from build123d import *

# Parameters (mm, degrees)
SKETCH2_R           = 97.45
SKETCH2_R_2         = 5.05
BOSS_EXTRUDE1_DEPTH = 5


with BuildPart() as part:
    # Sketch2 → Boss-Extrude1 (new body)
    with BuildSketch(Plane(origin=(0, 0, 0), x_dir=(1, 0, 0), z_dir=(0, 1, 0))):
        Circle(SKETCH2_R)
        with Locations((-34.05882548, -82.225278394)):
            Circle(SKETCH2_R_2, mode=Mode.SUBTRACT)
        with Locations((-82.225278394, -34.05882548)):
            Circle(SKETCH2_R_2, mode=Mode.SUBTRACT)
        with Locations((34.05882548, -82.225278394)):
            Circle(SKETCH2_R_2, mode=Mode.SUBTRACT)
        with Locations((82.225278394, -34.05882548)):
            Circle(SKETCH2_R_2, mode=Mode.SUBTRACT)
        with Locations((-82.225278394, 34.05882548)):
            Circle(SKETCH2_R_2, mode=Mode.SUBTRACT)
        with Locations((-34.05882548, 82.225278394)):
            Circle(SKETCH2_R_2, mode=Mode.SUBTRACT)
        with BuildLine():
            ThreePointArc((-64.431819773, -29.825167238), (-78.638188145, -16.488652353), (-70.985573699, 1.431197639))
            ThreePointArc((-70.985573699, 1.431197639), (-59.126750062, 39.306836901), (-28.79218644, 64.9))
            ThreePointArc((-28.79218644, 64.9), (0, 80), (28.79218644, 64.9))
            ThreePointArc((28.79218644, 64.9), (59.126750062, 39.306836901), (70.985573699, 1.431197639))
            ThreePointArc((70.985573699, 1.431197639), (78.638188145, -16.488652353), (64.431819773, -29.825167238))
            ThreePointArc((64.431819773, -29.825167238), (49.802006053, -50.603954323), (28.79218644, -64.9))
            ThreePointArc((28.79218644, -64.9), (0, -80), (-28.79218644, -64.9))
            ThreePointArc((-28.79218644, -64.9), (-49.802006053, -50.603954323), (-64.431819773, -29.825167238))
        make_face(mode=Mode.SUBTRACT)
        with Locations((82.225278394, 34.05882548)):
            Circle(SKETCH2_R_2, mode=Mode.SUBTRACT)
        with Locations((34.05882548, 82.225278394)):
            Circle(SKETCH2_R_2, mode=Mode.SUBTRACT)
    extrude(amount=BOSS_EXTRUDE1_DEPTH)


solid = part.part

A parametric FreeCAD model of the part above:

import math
import FreeCAD as App
import Part
import Sketcher

V = App.Vector
Q = App.Units.Quantity

doc = App.newDocument("Part")
body = doc.addObject("PartDesign::Body", "Body")

# Sketch on XZ plane
sketch1 = doc.addObject("Sketcher::SketchObject", "Sketch")
body.addObject(sketch1)
sketch1.AttachmentSupport = (doc.XZ_Plane, [""])
sketch1.MapMode = "FlatFace"
sketch1.addGeometry([
    Part.Circle(V(0, 0, 0), V(0, 0, 1), 97),  # 0
    Part.Circle(V(-34, 82, 0), V(0, 0, 1), 5),  # 1
    Part.Circle(V(-82, 34, 0), V(0, 0, 1), 5),  # 2
    Part.Circle(V(34, 82, 0), V(0, 0, 1), 5),  # 3
    Part.Circle(V(82, 34, 0), V(0, 0, 1), 5),  # 4
    Part.Circle(V(-82, -34, 0), V(0, 0, 1), 5),  # 5
    Part.Circle(V(-34, -82, 0), V(0, 0, 1), 5),  # 6
    Part.ArcOfCircle(Part.Circle(V(0, 0, 0), V(0, 0, 1), 71), math.radians(114), math.radians(155)),  # 7
    Part.ArcOfCircle(Part.Circle(V(-62, 13, 0), V(0, 0, 1), 17), math.radians(98), math.radians(238)),  # 8
    Part.ArcOfCircle(Part.Circle(V(0, 0, 0), V(0, 0, 1), 71), math.radians(-179), math.radians(-114)),  # 9
    Part.ArcOfCircle(Part.Circle(V(0, -45, 0), V(0, 0, 1), 35), math.radians(-145), math.radians(-35)),  # 10
    Part.ArcOfCircle(Part.Circle(V(0, 0, 0), V(0, 0, 1), 71), math.radians(-66), math.radians(-1)),  # 11
    Part.ArcOfCircle(Part.Circle(V(62, 13, 0), V(0, 0, 1), 17), math.radians(-58), math.radians(82)),  # 12
    Part.ArcOfCircle(Part.Circle(V(0, 0, 0), V(0, 0, 1), 71), math.radians(25), math.radians(66)),  # 13
    Part.ArcOfCircle(Part.Circle(V(0, 45, 0), V(0, 0, 1), 35), math.radians(35), math.radians(145)),  # 14
    Part.Circle(V(82, -34, 0), V(0, 0, 1), 5),  # 15
    Part.Circle(V(34, -82, 0), V(0, 0, 1), 5),  # 16
], False)
sketch1.addConstraint([
    Sketcher.Constraint("Coincident", 7, 2, 8, 1),
    Sketcher.Constraint("Coincident", 8, 2, 9, 1),
    Sketcher.Constraint("Coincident", 9, 2, 10, 1),
    Sketcher.Constraint("Coincident", 10, 2, 11, 1),
    Sketcher.Constraint("Coincident", 11, 2, 12, 1),
    Sketcher.Constraint("Coincident", 12, 2, 13, 1),
    Sketcher.Constraint("Coincident", 13, 2, 14, 1),
    Sketcher.Constraint("Coincident", 14, 2, 7, 1),
    Sketcher.Constraint("Coincident", 0, 3, -1, 1),
    Sketcher.Constraint("Coincident", 7, 3, -1, 1),
    Sketcher.Constraint("Coincident", 9, 3, -1, 1),
    Sketcher.Constraint("Coincident", 11, 3, -1, 1),
    Sketcher.Constraint("Coincident", 13, 3, -1, 1),
    Sketcher.Constraint("Equal", 1, 2),
    Sketcher.Constraint("Equal", 2, 3),
    Sketcher.Constraint("Equal", 3, 4),
    Sketcher.Constraint("Equal", 4, 5),
    Sketcher.Constraint("Equal", 5, 6),
    Sketcher.Constraint("Equal", 7, 9),
    Sketcher.Constraint("Equal", 9, 11),
    Sketcher.Constraint("Equal", 8, 12),
    Sketcher.Constraint("Equal", 11, 13),
    Sketcher.Constraint("Equal", 10, 14),
    Sketcher.Constraint("Equal", 6, 15),
    Sketcher.Constraint("Equal", 15, 16),
    Sketcher.Constraint("Symmetric", 4, 3, 5, 3, -1, 1),
    Sketcher.Constraint("Symmetric", 3, 3, 6, 3, -1, 1),
    Sketcher.Constraint("Symmetric", 10, 3, 14, 3, -1, 1),
    Sketcher.Constraint("Symmetric", 2, 3, 15, 3, -1, 1),
    Sketcher.Constraint("Symmetric", 1, 3, 16, 3, -1, 1),
    Sketcher.Constraint("Symmetric", 1, 3, 3, 3, -2),
    Sketcher.Constraint("Symmetric", 2, 3, 4, 3, -2),
    Sketcher.Constraint("Symmetric", 8, 3, 12, 3, -2),
    Sketcher.Constraint("PointOnObject", 10, 3, -2),
    Sketcher.Constraint("Radius", 7, Q("71 mm")),
    Sketcher.Constraint("Radius", 8, Q("17 mm")),
    Sketcher.Constraint("Radius", 10, Q("35 mm")),
    Sketcher.Constraint("Diameter", 0, Q("194.9 mm")),
    Sketcher.Constraint("Diameter", 1, Q("10.1 mm")),
    Sketcher.Constraint("DistanceX", 8, 3, -1, 1, Q("62 mm")),
    Sketcher.Constraint("DistanceY", -1, 1, 8, 3, Q("13 mm")),
    Sketcher.Constraint("DistanceY", 10, 3, -1, 1, Q("45 mm")),
    Sketcher.Constraint("DistanceY", -1, 1, 1, 3, Q("82.225278 mm")),
    Sketcher.Constraint("DistanceX", 2, 3, -1, 1, Q("82.225278 mm")),
    Sketcher.Constraint("DistanceX", 1, 3, 3, 3, Q("68.117651 mm")),
    Sketcher.Constraint("DistanceY", 5, 3, 2, 3, Q("68.117651 mm")),
])
pad1 = doc.addObject("PartDesign::Pad", "Pad")
body.addObject(pad1)
pad1.Profile = sketch1
pad1.Length = 5
pad1.Reversed = True

doc.recompute()
